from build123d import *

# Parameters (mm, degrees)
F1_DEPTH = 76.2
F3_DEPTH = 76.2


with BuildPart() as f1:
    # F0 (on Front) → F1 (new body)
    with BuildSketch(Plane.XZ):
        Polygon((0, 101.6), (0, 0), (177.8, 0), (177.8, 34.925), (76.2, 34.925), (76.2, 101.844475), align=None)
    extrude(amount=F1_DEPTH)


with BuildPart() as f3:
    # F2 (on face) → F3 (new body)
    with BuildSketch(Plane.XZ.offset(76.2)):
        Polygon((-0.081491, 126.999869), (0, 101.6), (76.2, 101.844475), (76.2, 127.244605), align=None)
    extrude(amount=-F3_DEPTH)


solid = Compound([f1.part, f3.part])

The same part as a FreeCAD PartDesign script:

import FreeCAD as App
import Part
import Sketcher
from FreeCAD import Vector
Q = App.Units.Quantity


def add_polygon(sketch, points):
    """Adds a closed chain of lines whose ends are joined by coincident constraints."""
    first, n = sketch.GeometryCount, len(points)
    for a, b in zip(points, points[1:] + points[:1]):
        sketch.addGeometry(Part.LineSegment(App.Vector(*a, 0), App.Vector(*b, 0)), False)
    for i in range(n):
        sketch.addConstraint(Sketcher.Constraint("Coincident", first + i, 2, first + (i + 1) % n, 1))

doc = App.newDocument("Part")
body = doc.addObject("PartDesign::Body", "Body")

sketch1 = body.newObject("Sketcher::SketchObject", "Sketch")
sketch1.AttachmentSupport = (doc.getObject("XZ_Plane"), [""])
sketch1.MapMode = "FlatFace"
add_polygon(sketch1, [(0, 102), (0, 0), (178, 0), (178, 35), (76, 35), (76, 102)])
sketch1.addConstraint([
    Sketcher.Constraint("Vertical", 0),
    Sketcher.Constraint("Horizontal", 1),
    Sketcher.Constraint("Vertical", 2),
    Sketcher.Constraint("Horizontal", 3),
    Sketcher.Constraint("Vertical", 4),
    Sketcher.Constraint("Coincident", 0, 2, -1, 1),
    Sketcher.Constraint("Equal", 3, 0),
    Sketcher.Constraint("DistanceX", 1, 1, 1, 2, Q("7 in")),
    Sketcher.Constraint("DistanceX", 3, 2, 3, 1, Q("4 in")),
    Sketcher.Constraint("DistanceY", 2, 1, 2, 2, Q("1.375 in")),
    Sketcher.Constraint("DistanceY", 4, 1, 4, 2, Q("66.919475 mm")),
])
pad1 = body.newObject("PartDesign::Pad", "Pad")
pad1.Profile = sketch1
pad1.Length = Q("3 in")
body2 = doc.addObject("PartDesign::Body", "Body001")

sketch2 = body2.newObject("Sketcher::SketchObject", "Sketch001")
sketch2.AttachmentSupport = (doc.getObject("XZ_Plane001"), [""])
sketch2.MapMode = "FlatFace"
sketch2.AttachmentOffset = App.Placement(Vector(0, 0, 3 * 25.4), App.Rotation())
add_polygon(sketch2, [(0, 127), (0, 102), (76, 102), (76, 127)])
sketch2.addConstraint([
    Sketcher.Constraint("Vertical", 2),
    Sketcher.Constraint("PointOnObject", 0, 2, -2),
    Sketcher.Constraint("Perpendicular", 0, 1),
    Sketcher.Constraint("Parallel", 1, 3),
    Sketcher.Constraint("Distance", 0, Q("1 in")),
    Sketcher.Constraint("DistanceY", -1, 1, 0, 2, Q("4 in")),
    Sketcher.Constraint("DistanceX", -1, 1, 1, 2, Q("3 in")),
    Sketcher.Constraint("DistanceX", 3, 2, -1, 1, Q("0.081491 mm")),
])
pad2 = body2.newObject("PartDesign::Pad", "Pad001")
pad2.Profile = sketch2
pad2.Length = Q("3 in")
pad2.Reversed = True

doc.recompute()
